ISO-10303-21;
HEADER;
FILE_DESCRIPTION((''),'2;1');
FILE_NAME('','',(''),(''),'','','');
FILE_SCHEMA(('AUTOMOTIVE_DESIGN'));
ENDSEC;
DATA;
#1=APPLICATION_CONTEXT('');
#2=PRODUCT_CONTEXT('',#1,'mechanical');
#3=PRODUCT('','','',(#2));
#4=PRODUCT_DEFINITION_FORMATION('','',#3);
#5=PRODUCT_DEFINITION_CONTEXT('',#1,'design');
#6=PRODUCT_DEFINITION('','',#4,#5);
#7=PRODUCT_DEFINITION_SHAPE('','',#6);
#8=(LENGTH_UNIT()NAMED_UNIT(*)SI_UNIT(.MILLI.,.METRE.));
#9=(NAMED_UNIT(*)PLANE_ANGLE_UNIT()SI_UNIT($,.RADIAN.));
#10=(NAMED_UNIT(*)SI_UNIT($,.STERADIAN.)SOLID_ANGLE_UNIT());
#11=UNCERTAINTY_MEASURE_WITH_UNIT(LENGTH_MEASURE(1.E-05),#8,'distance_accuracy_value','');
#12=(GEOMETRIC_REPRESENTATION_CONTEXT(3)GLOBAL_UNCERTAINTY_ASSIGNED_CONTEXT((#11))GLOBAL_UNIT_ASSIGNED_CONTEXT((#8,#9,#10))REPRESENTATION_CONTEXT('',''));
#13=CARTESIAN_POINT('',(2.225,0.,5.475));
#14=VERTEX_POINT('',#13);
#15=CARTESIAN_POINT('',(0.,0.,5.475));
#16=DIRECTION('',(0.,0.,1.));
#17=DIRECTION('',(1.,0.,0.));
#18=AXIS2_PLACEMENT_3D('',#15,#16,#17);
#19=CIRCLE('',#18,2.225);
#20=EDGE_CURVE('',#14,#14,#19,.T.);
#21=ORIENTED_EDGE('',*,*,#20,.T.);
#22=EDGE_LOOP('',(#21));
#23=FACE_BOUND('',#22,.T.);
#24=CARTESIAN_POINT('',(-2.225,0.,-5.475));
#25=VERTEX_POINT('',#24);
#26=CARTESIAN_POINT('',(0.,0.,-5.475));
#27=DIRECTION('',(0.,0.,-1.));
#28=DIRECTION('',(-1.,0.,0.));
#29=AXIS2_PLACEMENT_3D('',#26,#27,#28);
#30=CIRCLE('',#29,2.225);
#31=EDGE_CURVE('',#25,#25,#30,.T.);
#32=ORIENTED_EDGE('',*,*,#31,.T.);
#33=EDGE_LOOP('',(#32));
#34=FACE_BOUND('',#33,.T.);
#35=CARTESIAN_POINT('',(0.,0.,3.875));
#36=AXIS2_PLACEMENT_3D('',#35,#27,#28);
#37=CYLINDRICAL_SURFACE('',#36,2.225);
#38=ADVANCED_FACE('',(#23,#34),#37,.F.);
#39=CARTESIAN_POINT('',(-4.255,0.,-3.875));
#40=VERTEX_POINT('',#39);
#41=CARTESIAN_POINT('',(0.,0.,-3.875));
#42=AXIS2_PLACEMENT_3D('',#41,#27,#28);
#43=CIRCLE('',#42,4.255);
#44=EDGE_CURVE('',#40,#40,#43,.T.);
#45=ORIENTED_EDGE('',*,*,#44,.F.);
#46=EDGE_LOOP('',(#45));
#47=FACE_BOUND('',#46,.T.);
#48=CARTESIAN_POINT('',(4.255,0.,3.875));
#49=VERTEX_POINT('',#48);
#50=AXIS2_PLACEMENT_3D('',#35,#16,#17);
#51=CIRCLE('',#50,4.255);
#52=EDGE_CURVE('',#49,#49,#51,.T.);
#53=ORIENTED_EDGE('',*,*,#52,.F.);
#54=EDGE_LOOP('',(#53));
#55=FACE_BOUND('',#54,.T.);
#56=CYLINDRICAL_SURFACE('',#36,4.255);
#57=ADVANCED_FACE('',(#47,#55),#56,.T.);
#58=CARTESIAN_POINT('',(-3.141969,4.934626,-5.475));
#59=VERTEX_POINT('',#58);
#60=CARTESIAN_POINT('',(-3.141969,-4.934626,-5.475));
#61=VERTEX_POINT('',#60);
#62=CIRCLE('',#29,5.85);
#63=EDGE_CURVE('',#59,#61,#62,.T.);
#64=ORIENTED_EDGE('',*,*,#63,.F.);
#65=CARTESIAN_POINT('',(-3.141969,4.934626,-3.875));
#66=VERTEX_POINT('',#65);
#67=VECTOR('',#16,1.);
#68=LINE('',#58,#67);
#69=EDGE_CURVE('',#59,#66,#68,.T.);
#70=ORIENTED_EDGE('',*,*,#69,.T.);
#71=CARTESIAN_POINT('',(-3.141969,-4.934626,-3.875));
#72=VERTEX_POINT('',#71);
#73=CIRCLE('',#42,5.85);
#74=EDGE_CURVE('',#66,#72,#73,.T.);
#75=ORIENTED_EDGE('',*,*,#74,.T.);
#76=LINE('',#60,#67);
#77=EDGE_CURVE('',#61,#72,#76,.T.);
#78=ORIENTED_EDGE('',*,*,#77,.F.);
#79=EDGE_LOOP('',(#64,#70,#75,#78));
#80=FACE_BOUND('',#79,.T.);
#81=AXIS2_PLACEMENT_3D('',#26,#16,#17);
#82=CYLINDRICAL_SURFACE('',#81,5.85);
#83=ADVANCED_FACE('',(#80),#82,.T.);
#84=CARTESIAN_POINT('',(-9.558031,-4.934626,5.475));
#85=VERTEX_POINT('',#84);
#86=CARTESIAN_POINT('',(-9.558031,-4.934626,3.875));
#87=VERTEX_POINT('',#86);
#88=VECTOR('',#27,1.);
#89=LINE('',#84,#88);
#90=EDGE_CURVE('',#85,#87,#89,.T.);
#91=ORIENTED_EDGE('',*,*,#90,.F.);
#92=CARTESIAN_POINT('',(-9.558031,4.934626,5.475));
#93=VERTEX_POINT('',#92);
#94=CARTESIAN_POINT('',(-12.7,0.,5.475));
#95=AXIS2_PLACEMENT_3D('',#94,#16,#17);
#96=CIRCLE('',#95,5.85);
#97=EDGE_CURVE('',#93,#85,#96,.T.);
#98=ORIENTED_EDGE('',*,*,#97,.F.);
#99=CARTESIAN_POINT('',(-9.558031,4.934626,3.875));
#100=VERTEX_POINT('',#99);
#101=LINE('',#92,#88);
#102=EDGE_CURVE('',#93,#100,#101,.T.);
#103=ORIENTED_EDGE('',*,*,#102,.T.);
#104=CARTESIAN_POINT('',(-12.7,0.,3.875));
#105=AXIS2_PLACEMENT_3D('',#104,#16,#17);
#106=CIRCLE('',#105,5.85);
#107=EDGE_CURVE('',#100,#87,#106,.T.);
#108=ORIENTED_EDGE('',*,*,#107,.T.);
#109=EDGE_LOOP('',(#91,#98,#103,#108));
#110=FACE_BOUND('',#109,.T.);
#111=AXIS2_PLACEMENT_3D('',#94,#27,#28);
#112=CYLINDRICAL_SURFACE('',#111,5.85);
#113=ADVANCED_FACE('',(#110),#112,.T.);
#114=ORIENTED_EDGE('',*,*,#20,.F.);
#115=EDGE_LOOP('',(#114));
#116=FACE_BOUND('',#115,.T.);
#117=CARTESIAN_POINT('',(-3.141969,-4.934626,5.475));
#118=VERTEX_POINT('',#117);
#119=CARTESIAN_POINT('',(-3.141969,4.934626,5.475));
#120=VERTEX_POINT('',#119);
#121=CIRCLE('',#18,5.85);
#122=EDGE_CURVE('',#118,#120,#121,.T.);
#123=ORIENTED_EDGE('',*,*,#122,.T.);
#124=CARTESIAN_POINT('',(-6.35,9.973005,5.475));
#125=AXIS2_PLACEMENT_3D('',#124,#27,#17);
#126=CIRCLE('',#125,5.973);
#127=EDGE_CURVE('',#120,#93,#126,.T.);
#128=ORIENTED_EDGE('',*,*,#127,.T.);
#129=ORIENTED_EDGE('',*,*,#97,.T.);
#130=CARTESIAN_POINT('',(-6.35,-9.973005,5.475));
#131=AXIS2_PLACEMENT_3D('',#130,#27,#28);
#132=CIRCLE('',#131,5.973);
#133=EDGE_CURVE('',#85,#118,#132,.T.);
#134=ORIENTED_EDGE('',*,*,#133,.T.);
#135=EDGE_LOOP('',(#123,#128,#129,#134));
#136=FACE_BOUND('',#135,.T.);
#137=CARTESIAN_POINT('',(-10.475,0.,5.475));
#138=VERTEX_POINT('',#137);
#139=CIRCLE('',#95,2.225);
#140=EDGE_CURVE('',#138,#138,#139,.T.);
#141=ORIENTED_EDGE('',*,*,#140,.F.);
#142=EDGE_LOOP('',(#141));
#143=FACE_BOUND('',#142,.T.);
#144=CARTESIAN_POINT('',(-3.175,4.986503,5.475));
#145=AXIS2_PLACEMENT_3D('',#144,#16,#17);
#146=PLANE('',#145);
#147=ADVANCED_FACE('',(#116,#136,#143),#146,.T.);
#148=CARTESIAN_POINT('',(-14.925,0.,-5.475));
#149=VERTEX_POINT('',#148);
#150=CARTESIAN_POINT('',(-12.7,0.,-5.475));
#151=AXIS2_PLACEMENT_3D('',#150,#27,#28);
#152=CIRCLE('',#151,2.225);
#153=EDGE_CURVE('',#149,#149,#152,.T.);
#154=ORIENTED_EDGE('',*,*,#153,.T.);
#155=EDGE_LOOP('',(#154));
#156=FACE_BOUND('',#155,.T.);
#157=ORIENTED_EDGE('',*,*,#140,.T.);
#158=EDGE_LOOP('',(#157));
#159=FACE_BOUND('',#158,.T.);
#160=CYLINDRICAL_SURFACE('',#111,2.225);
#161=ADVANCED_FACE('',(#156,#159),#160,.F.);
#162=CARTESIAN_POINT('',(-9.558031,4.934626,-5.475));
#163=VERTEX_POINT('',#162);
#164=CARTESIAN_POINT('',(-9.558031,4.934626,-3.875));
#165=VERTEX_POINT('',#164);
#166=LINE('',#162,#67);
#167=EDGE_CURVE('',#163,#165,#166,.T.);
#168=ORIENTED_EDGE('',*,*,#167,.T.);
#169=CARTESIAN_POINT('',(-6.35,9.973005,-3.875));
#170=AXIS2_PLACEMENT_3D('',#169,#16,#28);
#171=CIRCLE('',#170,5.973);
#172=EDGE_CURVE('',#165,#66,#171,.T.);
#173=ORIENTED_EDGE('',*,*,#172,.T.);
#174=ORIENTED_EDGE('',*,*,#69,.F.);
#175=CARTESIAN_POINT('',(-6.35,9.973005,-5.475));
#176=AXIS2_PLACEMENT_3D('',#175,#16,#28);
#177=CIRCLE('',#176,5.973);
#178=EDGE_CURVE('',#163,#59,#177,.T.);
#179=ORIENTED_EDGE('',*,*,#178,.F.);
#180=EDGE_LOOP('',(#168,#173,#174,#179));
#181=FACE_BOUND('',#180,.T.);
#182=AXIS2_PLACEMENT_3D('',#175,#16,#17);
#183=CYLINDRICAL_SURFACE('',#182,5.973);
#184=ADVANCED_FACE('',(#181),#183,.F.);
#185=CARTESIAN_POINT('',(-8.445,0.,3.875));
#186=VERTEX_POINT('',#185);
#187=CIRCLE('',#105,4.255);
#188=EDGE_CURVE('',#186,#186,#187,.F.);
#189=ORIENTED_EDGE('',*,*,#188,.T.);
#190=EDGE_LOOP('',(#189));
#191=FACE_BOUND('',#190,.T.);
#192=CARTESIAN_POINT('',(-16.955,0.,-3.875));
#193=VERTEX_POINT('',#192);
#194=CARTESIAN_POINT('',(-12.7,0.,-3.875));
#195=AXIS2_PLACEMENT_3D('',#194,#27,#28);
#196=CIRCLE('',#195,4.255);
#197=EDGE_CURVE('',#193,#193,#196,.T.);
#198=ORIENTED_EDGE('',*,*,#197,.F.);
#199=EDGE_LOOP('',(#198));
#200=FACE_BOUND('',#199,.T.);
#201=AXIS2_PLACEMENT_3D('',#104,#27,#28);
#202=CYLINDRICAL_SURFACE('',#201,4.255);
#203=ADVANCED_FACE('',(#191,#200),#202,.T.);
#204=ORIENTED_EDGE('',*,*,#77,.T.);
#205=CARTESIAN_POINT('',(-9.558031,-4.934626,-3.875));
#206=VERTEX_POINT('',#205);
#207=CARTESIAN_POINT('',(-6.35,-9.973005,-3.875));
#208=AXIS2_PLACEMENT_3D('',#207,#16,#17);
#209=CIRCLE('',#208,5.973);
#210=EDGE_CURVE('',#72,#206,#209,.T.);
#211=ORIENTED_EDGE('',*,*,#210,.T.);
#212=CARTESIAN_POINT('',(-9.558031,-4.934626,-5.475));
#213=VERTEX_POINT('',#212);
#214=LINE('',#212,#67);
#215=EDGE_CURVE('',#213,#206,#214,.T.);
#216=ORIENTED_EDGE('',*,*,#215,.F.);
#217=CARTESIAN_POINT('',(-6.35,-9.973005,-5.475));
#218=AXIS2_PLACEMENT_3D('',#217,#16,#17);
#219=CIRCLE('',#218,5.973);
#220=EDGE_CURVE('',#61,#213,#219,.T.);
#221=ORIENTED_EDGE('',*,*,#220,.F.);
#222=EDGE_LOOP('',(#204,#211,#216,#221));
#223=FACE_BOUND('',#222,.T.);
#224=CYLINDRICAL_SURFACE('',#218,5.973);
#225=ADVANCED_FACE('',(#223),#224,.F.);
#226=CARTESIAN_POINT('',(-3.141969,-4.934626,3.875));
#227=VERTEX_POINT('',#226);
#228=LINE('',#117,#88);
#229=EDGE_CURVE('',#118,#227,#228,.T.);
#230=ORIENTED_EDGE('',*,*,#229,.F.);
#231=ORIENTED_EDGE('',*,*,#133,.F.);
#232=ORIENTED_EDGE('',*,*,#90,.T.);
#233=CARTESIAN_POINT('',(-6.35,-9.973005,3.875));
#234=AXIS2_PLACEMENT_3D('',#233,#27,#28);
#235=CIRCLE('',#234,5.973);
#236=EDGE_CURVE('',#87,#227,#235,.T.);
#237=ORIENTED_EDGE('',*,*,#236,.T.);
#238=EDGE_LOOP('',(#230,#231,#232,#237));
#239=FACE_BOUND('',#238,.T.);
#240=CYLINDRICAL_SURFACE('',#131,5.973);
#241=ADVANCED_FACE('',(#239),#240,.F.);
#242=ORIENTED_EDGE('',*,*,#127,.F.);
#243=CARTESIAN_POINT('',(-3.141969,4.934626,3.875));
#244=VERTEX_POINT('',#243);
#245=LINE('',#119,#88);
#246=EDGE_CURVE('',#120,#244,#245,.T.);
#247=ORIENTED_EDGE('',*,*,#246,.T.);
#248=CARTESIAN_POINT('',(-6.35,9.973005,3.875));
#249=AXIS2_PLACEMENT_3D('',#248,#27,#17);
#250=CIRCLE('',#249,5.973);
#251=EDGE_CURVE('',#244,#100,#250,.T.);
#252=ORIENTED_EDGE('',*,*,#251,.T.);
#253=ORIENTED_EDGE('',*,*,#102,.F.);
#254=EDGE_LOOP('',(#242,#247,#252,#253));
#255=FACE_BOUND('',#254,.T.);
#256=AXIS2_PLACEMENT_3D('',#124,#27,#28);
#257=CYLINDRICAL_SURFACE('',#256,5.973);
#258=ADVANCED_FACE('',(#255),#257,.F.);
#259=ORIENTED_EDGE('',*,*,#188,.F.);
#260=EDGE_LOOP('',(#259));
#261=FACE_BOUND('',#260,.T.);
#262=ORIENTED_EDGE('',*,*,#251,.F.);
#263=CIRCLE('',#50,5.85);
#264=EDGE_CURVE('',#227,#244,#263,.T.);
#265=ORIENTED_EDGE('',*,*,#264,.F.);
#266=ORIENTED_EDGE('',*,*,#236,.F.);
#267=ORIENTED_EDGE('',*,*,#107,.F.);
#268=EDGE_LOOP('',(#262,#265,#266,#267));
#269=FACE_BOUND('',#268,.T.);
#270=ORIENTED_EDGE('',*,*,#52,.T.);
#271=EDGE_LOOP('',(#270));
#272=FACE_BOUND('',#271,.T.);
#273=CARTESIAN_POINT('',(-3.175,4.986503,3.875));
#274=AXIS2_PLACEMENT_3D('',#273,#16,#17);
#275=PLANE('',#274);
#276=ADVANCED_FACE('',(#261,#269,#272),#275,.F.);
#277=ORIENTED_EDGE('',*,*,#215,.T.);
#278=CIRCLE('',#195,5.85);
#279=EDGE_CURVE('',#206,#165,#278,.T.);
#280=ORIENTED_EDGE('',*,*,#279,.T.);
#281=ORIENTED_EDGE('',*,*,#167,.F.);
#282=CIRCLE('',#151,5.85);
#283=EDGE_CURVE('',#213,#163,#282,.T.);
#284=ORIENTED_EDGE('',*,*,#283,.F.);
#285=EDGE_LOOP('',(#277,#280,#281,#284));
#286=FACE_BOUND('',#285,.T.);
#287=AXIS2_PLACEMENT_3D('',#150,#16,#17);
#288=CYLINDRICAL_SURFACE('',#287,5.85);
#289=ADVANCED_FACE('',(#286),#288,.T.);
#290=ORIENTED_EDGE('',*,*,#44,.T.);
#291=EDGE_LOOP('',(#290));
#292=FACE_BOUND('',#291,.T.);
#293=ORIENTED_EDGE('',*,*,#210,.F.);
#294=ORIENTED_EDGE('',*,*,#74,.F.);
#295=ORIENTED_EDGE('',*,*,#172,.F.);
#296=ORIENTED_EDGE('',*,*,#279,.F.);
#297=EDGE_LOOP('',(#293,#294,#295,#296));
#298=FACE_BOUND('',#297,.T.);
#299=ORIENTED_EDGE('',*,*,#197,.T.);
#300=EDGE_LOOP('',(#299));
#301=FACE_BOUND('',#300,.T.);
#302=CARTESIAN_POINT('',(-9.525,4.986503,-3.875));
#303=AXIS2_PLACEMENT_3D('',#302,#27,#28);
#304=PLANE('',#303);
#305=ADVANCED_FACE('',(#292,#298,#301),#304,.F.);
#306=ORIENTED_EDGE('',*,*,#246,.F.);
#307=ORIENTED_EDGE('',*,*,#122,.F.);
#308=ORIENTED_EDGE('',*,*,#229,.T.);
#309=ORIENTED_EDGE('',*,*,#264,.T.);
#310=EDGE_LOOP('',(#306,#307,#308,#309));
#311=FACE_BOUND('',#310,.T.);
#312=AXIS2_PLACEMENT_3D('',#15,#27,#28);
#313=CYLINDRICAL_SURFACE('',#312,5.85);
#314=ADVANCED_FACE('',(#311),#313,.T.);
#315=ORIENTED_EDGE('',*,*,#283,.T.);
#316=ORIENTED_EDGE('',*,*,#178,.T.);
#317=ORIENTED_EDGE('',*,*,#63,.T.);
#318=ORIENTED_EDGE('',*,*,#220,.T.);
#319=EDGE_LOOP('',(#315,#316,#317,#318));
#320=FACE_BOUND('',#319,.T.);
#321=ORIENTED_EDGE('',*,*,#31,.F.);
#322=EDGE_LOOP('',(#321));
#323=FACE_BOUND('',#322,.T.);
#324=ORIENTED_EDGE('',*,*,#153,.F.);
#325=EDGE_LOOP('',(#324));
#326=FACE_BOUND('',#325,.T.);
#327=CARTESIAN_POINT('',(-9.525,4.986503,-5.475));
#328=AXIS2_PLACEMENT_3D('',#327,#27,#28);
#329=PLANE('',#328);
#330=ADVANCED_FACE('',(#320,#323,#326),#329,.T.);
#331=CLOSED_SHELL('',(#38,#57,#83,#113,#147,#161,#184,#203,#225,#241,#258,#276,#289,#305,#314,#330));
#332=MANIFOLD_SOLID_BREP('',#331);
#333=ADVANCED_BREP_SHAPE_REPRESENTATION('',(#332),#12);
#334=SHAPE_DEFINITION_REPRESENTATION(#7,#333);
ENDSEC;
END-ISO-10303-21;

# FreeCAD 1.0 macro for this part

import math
import FreeCAD as App
import Part
import Sketcher

V = App.Vector

doc = App.newDocument("Part")
body = doc.addObject("PartDesign::Body", "Body")

sketch1 = body.newObject("Sketcher::SketchObject", "Sketch")
sketch1.AttachmentSupport = (doc.getObject("XY_Plane"), [""])
sketch1.MapMode = "FlatFace"
sketch1.addGeometry([
    Part.Circle(V(0, 0, 0), V(0, 0, 1), 4.255),
    Part.Circle(V(0, 0, 0), V(0, 0, 1), 2.225),
], False)
sketch1.addConstraint([
    Sketcher.Constraint("Coincident", 0, 3, -1, 1),
    Sketcher.Constraint("Coincident", 1, 3, -1, 1),
    Sketcher.Constraint("Diameter", 0, 8.51),
    Sketcher.Constraint("Diameter", 1, 4.45),
])
pad1 = body.newObject("PartDesign::Pad", "Pad")
pad1.Profile = sketch1
pad1.Length = 7.75
pad1.Midplane = True
body2 = doc.addObject("PartDesign::Body", "Body001")

sketch2 = body2.newObject("Sketcher::SketchObject", "Sketch001")
sketch2.AttachmentSupport = (doc.getObject("XY_Plane001"), [""])
sketch2.MapMode = "FlatFace"
sketch2.addGeometry([
    Part.Circle(V(-12.7, 0, 0), V(0, 0, 1), 4.255),
    Part.Circle(V(-12.7, 0, 0), V(0, 0, 1), 2.225),
], False)
sketch2.addConstraint([
    Sketcher.Constraint("Coincident", 1, 3, 0, 3),
    Sketcher.Constraint("PointOnObject", 0, 3, -1),
    Sketcher.Constraint("Diameter", 0, 8.51),
    Sketcher.Constraint("Diameter", 1, 4.45),
    Sketcher.Constraint("DistanceX", 0, 3, -1, 1, 12.7),
])
pad2 = body2.newObject("PartDesign::Pad", "Pad001")
pad2.Profile = sketch2
pad2.Length = 7.75
pad2.Midplane = True
body.AllowCompound = True
doc.recompute()

boolean = body.newObject("PartDesign::Boolean", "Boolean")
boolean.Type = "Fuse"
boolean.addObjects([body2])

sketch3 = body.newObject("Sketcher::SketchObject", "Sketch002")
sketch3.AttachmentSupport = (doc.getObject("XY_Plane"), [""])
sketch3.MapMode = "FlatFace"
sketch3.AttachmentOffset = App.Placement(V(0, 0, 3.875), App.Rotation())
sketch3.addGeometry([
    Part.ArcOfCircle(Part.Circle(V(0, 0, 0), V(0, 0, 1), 5.85), math.radians(-122.485675), math.radians(122.485675)),
    Part.ArcOfCircle(Part.Circle(V(-6.35, 9.973005, 0), V(0, 0, 1), 5.973), math.radians(-122.485675), math.radians(-57.514325)),
    Part.ArcOfCircle(Part.Circle(V(-12.7, 0, 0), V(0, 0, 1), 5.85), math.radians(57.514325), math.radians(302.485675)),
    Part.ArcOfCircle(Part.Circle(V(-6.35, -9.973005, 0), V(0, 0, 1), 5.973), math.radians(57.514325), math.radians(122.485675)),
    Part.Circle(V(-12.7, 0, 0), V(0, 0, 1), 2.225),
    Part.Circle(V(0, 0, 0), V(0, 0, 1), 2.225),
], False)
sketch3.addConstraint([
    Sketcher.Constraint("Tangent", 0, 2, 1, 2),
    Sketcher.Constraint("Tangent", 1, 1, 2, 1),
    Sketcher.Constraint("Tangent", 2, 2, 3, 2),
    Sketcher.Constraint("Tangent", 3, 1, 0, 1),
    Sketcher.Constraint("Coincident", 0, 3, -1, 1),
    Sketcher.Constraint("Coincident", 5, 3, -1, 1),
    Sketcher.Constraint("Coincident", 4, 3, 2, 3),
    Sketcher.Constraint("Equal", 0, 2),
    Sketcher.Constraint("Equal", 1, 3),
    Sketcher.Constraint("Equal", 4, 5),
    Sketcher.Constraint("PointOnObject", 2, 3, -1),
    Sketcher.Constraint("Diameter", 4, 4.45),
    Sketcher.Constraint("Radius", 0, 5.85),
    Sketcher.Constraint("Radius", 1, 5.973),
    Sketcher.Constraint("DistanceX", 2, 3, -1, 1, 12.7),
])
pad3 = body.newObject("PartDesign::Pad", "Pad002")
pad3.Profile = sketch3
pad3.Length = 1.6

sketch4 = body.newObject("Sketcher::SketchObject", "Sketch003")
sketch4.AttachmentSupport = (doc.getObject("XY_Plane"), [""])
sketch4.MapMode = "FlatFace"
sketch4.AttachmentOffset = App.Placement(V(0, 0, -5.475), App.Rotation())
sketch4.addGeometry([
    Part.ArcOfCircle(Part.Circle(V(0, 0, 0), V(0, 0, 1), 5.85), math.radians(-122.485675), math.radians(122.485675)),
    Part.ArcOfCircle(Part.Circle(V(-6.35, -9.973005, 0), V(0, 0, 1), 5.973), math.radians(57.514325), math.radians(122.485675)),
    Part.ArcOfCircle(Part.Circle(V(-12.7, 0, 0), V(0, 0, 1), 5.85), math.radians(57.514325), math.radians(302.485675)),
    Part.ArcOfCircle(Part.Circle(V(-6.35, 9.973005, 0), V(0, 0, 1), 5.973), math.radians(-122.485675), math.radians(-57.514325)),
    Part.Circle(V(0, 0, 0), V(0, 0, 1), 2.225),
    Part.Circle(V(-12.7, 0, 0), V(0, 0, 1), 2.225),
], False)
sketch4.addConstraint([
    Sketcher.Constraint("Tangent", 0, 1, 1, 1),
    Sketcher.Constraint("Tangent", 1, 2, 2, 2),
    Sketcher.Constraint("Tangent", 2, 1, 3, 1),
    Sketcher.Constraint("Tangent", 3, 2, 0, 2),
    Sketcher.Constraint("Coincident", 0, 3, -1, 1),
    Sketcher.Constraint("Coincident", 4, 3, -1, 1),
    Sketcher.Constraint("Coincident", 5, 3, 2, 3),
    Sketcher.Constraint("Equal", 0, 2),
    Sketcher.Constraint("Equal", 1, 3),
    Sketcher.Constraint("Equal", 4, 5),
    Sketcher.Constraint("PointOnObject", 2, 3, -1),
    Sketcher.Constraint("Diameter", 4, 4.45),
    Sketcher.Constraint("Radius", 0, 5.85),
    Sketcher.Constraint("Radius", 1, 5.973),
    Sketcher.Constraint("DistanceX", 2, 3, -1, 1, 12.7),
])
pad4 = body.newObject("PartDesign::Pad", "Pad003")
pad4.Profile = sketch4
pad4.Length = 1.6

doc.recompute()
